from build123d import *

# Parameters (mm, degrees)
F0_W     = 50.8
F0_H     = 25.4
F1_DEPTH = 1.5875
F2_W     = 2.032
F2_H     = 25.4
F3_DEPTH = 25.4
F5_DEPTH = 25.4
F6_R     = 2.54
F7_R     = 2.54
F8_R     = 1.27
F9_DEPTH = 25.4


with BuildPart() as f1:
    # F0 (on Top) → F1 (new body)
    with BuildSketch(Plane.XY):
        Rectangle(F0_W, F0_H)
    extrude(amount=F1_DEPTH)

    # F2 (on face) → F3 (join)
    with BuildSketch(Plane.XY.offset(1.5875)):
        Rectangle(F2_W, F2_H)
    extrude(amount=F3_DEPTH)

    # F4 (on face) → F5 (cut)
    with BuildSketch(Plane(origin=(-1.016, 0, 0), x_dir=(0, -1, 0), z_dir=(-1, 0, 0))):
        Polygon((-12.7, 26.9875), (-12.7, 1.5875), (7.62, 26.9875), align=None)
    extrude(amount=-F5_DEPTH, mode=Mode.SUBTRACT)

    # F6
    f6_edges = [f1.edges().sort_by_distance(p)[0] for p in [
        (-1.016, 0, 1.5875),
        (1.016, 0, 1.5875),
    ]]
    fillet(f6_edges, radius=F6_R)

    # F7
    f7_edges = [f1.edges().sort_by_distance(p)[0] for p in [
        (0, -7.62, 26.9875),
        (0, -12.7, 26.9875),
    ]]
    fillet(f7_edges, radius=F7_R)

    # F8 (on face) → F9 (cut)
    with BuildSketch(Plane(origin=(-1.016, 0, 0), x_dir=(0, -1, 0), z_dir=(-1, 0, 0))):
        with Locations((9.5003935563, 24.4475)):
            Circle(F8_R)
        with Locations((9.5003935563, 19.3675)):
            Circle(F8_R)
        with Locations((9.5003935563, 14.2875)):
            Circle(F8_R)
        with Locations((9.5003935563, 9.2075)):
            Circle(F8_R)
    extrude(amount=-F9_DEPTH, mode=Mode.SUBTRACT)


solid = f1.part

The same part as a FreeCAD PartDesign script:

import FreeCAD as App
import Part
import Sketcher
from FreeCAD import Vector
Q = App.Units.Quantity


def edges_at(feature, points):
    """Names of the edges that pass closest to the given points."""
    edges = feature.Shape.Edges
    near = lambda p: min(range(len(edges)), key=lambda i: edges[i].distToShape(Part.Vertex(*p))[0])
    return sorted({f"Edge{near(p) + 1}" for p in points})


def add_polygon(sketch, points):
    """Adds a closed chain of lines whose ends are joined by coincident constraints."""
    first, n = sketch.GeometryCount, len(points)
    for a, b in zip(points, points[1:] + points[:1]):
        sketch.addGeometry(Part.LineSegment(App.Vector(*a, 0), App.Vector(*b, 0)), False)
    for i in range(n):
        sketch.addConstraint(Sketcher.Constraint("Coincident", first + i, 2, first + (i + 1) % n, 1))

doc = App.newDocument("Part")
body = doc.addObject("PartDesign::Body", "Body")

# Sketch on XY plane
sketch1 = body.newObject("Sketcher::SketchObject", "Sketch")
sketch1.AttachmentSupport = (doc.getObject("XY_Plane"), [""])
sketch1.MapMode = "FlatFace"
add_polygon(sketch1, [(-25, 13), (-25, -13), (25, -13), (25, 13)])  # lines 0-3
sketch1.addConstraint(Sketcher.Constraint("Vertical", 0))
sketch1.addConstraint(Sketcher.Constraint("Horizontal", 1))
sketch1.addConstraint(Sketcher.Constraint("Vertical", 2))
sketch1.addConstraint(Sketcher.Constraint("Horizontal", 3))
sketch1.addConstraint(Sketcher.Constraint("Symmetric", 0, 2, 2, 2, -1, 1))
sketch1.addConstraint(Sketcher.Constraint("DistanceX", 1, 1, 1, 2, Q("2 in")))
sketch1.addConstraint(Sketcher.Constraint("DistanceY", 0, 2, 0, 1, Q("1 in")))
pad1 = body.newObject("PartDesign::Pad", "Pad")
pad1.Profile = sketch1
pad1.Length = Q("0.0625 in")

# Sketch on XY plane
sketch2 = body.newObject("Sketcher::SketchObject", "Sketch001")
sketch2.AttachmentSupport = (doc.getObject("XY_Plane"), [""])
sketch2.MapMode = "FlatFace"
sketch2.AttachmentOffset = App.Placement(Vector(0, 0, 0.0625 * 25.4), App.Rotation())
add_polygon(sketch2, [(-1, 12.7), (-1, -12.7), (1, -12.7), (1, 12.7)])  # lines 0-3
sketch2.addConstraint(Sketcher.Constraint("Vertical", 0))
sketch2.addConstraint(Sketcher.Constraint("Horizontal", 1))
sketch2.addConstraint(Sketcher.Constraint("Vertical", 2))
sketch2.addConstraint(Sketcher.Constraint("Horizontal", 3))
sketch2.addConstraint(Sketcher.Constraint("Symmetric", 0, 2, 2, 2, -1, 1))
sketch2.addConstraint(Sketcher.Constraint("DistanceY", 0, 2, 0, 1, Q("1 in")))
sketch2.addConstraint(Sketcher.Constraint("DistanceX", 1, 1, 1, 2, Q("0.08 in")))
pad2 = body.newObject("PartDesign::Pad", "Pad001")
pad2.Profile = sketch2
pad2.Length = Q("1 in")

# Sketch on YZ plane
sketch3 = body.newObject("Sketcher::SketchObject", "Sketch002")
sketch3.AttachmentSupport = (doc.getObject("YZ_Plane"), [""])
sketch3.MapMode = "FlatFace"
sketch3.AttachmentOffset = App.Placement(Vector(0, 0, -0.04 * 25.4), App.Rotation())
add_polygon(sketch3, [(13, 27), (13, 2), (-8, 27)])  # lines 0-2
sketch3.addConstraint(Sketcher.Constraint("Vertical", 0))
sketch3.addConstraint(Sketcher.Constraint("Horizontal", 2))
sketch3.addConstraint(Sketcher.Constraint("DistanceY", 0, 2, 0, 1, Q("1 in")))
sketch3.addConstraint(Sketcher.Constraint("DistanceX", 2, 1, 2, 2, Q("0.8 in")))
sketch3.addConstraint(Sketcher.Constraint("DistanceX", -1, 1, 0, 2, Q("0.5 in")))
sketch3.addConstraint(Sketcher.Constraint("DistanceY", -1, 1, 0, 2, Q("0.0625 in")))
pocket1 = body.newObject("PartDesign::Pocket", "Pocket")
pocket1.Profile = sketch3
pocket1.Length = Q("1 in")
pocket1.Reversed = True
doc.recompute()

fillet = body.newObject("PartDesign::Fillet", "Fillet")
fillet.Base = (pocket1, edges_at(pocket1, [(-1.016, 0, 1.587), (1.016, 0, 1.587)]))
fillet.Radius = Q("0.1 in")
doc.recompute()

fillet2 = body.newObject("PartDesign::Fillet", "Fillet001")
fillet2.Base = (fillet, edges_at(fillet, [(0, -7.62, 26.988), (0, -12.7, 26.988)]))
fillet2.Radius = Q("0.1 in")

# Sketch on YZ plane
sketch4 = body.newObject("Sketcher::SketchObject", "Sketch003")
sketch4.AttachmentSupport = (doc.getObject("YZ_Plane"), [""])
sketch4.MapMode = "FlatFace"
sketch4.AttachmentOffset = App.Placement(Vector(0, 0, -0.04 * 25.4), App.Rotation())
sketch4.addGeometry(Part.Circle(Vector(-9.5, 24.4, 0), Vector(0, 0, 1), 1.3), False)
sketch4.addGeometry(Part.Circle(Vector(-9.5, 19.4, 0), Vector(0, 0, 1), 1.3), False)
sketch4.addGeometry(Part.Circle(Vector(-9.5, 14.3, 0), Vector(0, 0, 1), 1.3), False)
sketch4.addGeometry(Part.Circle(Vector(-9.5, 9.2, 0), Vector(0, 0, 1), 1.3), False)
sketch4.addConstraint(Sketcher.Constraint("Equal", 0, 1))
sketch4.addConstraint(Sketcher.Constraint("Equal", 1, 2))
sketch4.addConstraint(Sketcher.Constraint("Equal", 2, 3))
sketch4.addConstraint(Sketcher.Constraint("Vertical", 0, 3, 1, 3))
sketch4.addConstraint(Sketcher.Constraint("Vertical", 1, 3, 2, 3))
sketch4.addConstraint(Sketcher.Constraint("Vertical", 2, 3, 3, 3))
sketch4.addConstraint(Sketcher.Constraint("Diameter", 0, Q("0.1 in")))
sketch4.addConstraint(Sketcher.Constraint("DistanceY", 1, 3, 0, 3, Q("0.2 in")))
sketch4.addConstraint(Sketcher.Constraint("DistanceY", 2, 3, 1, 3, Q("0.2 in")))
sketch4.addConstraint(Sketcher.Constraint("DistanceY", 3, 3, 2, 3, Q("0.2 in")))
sketch4.addConstraint(Sketcher.Constraint("DistanceY", -1, 1, 2, 3, Q("0.5625 in")))
sketch4.addConstraint(Sketcher.Constraint("DistanceX", 0, 3, -1, 1, Q("9.500394 mm")))
pocket2 = body.newObject("PartDesign::Pocket", "Pocket001")
pocket2.Profile = sketch4
pocket2.Length = Q("1 in")
pocket2.Reversed = True

doc.recompute()
